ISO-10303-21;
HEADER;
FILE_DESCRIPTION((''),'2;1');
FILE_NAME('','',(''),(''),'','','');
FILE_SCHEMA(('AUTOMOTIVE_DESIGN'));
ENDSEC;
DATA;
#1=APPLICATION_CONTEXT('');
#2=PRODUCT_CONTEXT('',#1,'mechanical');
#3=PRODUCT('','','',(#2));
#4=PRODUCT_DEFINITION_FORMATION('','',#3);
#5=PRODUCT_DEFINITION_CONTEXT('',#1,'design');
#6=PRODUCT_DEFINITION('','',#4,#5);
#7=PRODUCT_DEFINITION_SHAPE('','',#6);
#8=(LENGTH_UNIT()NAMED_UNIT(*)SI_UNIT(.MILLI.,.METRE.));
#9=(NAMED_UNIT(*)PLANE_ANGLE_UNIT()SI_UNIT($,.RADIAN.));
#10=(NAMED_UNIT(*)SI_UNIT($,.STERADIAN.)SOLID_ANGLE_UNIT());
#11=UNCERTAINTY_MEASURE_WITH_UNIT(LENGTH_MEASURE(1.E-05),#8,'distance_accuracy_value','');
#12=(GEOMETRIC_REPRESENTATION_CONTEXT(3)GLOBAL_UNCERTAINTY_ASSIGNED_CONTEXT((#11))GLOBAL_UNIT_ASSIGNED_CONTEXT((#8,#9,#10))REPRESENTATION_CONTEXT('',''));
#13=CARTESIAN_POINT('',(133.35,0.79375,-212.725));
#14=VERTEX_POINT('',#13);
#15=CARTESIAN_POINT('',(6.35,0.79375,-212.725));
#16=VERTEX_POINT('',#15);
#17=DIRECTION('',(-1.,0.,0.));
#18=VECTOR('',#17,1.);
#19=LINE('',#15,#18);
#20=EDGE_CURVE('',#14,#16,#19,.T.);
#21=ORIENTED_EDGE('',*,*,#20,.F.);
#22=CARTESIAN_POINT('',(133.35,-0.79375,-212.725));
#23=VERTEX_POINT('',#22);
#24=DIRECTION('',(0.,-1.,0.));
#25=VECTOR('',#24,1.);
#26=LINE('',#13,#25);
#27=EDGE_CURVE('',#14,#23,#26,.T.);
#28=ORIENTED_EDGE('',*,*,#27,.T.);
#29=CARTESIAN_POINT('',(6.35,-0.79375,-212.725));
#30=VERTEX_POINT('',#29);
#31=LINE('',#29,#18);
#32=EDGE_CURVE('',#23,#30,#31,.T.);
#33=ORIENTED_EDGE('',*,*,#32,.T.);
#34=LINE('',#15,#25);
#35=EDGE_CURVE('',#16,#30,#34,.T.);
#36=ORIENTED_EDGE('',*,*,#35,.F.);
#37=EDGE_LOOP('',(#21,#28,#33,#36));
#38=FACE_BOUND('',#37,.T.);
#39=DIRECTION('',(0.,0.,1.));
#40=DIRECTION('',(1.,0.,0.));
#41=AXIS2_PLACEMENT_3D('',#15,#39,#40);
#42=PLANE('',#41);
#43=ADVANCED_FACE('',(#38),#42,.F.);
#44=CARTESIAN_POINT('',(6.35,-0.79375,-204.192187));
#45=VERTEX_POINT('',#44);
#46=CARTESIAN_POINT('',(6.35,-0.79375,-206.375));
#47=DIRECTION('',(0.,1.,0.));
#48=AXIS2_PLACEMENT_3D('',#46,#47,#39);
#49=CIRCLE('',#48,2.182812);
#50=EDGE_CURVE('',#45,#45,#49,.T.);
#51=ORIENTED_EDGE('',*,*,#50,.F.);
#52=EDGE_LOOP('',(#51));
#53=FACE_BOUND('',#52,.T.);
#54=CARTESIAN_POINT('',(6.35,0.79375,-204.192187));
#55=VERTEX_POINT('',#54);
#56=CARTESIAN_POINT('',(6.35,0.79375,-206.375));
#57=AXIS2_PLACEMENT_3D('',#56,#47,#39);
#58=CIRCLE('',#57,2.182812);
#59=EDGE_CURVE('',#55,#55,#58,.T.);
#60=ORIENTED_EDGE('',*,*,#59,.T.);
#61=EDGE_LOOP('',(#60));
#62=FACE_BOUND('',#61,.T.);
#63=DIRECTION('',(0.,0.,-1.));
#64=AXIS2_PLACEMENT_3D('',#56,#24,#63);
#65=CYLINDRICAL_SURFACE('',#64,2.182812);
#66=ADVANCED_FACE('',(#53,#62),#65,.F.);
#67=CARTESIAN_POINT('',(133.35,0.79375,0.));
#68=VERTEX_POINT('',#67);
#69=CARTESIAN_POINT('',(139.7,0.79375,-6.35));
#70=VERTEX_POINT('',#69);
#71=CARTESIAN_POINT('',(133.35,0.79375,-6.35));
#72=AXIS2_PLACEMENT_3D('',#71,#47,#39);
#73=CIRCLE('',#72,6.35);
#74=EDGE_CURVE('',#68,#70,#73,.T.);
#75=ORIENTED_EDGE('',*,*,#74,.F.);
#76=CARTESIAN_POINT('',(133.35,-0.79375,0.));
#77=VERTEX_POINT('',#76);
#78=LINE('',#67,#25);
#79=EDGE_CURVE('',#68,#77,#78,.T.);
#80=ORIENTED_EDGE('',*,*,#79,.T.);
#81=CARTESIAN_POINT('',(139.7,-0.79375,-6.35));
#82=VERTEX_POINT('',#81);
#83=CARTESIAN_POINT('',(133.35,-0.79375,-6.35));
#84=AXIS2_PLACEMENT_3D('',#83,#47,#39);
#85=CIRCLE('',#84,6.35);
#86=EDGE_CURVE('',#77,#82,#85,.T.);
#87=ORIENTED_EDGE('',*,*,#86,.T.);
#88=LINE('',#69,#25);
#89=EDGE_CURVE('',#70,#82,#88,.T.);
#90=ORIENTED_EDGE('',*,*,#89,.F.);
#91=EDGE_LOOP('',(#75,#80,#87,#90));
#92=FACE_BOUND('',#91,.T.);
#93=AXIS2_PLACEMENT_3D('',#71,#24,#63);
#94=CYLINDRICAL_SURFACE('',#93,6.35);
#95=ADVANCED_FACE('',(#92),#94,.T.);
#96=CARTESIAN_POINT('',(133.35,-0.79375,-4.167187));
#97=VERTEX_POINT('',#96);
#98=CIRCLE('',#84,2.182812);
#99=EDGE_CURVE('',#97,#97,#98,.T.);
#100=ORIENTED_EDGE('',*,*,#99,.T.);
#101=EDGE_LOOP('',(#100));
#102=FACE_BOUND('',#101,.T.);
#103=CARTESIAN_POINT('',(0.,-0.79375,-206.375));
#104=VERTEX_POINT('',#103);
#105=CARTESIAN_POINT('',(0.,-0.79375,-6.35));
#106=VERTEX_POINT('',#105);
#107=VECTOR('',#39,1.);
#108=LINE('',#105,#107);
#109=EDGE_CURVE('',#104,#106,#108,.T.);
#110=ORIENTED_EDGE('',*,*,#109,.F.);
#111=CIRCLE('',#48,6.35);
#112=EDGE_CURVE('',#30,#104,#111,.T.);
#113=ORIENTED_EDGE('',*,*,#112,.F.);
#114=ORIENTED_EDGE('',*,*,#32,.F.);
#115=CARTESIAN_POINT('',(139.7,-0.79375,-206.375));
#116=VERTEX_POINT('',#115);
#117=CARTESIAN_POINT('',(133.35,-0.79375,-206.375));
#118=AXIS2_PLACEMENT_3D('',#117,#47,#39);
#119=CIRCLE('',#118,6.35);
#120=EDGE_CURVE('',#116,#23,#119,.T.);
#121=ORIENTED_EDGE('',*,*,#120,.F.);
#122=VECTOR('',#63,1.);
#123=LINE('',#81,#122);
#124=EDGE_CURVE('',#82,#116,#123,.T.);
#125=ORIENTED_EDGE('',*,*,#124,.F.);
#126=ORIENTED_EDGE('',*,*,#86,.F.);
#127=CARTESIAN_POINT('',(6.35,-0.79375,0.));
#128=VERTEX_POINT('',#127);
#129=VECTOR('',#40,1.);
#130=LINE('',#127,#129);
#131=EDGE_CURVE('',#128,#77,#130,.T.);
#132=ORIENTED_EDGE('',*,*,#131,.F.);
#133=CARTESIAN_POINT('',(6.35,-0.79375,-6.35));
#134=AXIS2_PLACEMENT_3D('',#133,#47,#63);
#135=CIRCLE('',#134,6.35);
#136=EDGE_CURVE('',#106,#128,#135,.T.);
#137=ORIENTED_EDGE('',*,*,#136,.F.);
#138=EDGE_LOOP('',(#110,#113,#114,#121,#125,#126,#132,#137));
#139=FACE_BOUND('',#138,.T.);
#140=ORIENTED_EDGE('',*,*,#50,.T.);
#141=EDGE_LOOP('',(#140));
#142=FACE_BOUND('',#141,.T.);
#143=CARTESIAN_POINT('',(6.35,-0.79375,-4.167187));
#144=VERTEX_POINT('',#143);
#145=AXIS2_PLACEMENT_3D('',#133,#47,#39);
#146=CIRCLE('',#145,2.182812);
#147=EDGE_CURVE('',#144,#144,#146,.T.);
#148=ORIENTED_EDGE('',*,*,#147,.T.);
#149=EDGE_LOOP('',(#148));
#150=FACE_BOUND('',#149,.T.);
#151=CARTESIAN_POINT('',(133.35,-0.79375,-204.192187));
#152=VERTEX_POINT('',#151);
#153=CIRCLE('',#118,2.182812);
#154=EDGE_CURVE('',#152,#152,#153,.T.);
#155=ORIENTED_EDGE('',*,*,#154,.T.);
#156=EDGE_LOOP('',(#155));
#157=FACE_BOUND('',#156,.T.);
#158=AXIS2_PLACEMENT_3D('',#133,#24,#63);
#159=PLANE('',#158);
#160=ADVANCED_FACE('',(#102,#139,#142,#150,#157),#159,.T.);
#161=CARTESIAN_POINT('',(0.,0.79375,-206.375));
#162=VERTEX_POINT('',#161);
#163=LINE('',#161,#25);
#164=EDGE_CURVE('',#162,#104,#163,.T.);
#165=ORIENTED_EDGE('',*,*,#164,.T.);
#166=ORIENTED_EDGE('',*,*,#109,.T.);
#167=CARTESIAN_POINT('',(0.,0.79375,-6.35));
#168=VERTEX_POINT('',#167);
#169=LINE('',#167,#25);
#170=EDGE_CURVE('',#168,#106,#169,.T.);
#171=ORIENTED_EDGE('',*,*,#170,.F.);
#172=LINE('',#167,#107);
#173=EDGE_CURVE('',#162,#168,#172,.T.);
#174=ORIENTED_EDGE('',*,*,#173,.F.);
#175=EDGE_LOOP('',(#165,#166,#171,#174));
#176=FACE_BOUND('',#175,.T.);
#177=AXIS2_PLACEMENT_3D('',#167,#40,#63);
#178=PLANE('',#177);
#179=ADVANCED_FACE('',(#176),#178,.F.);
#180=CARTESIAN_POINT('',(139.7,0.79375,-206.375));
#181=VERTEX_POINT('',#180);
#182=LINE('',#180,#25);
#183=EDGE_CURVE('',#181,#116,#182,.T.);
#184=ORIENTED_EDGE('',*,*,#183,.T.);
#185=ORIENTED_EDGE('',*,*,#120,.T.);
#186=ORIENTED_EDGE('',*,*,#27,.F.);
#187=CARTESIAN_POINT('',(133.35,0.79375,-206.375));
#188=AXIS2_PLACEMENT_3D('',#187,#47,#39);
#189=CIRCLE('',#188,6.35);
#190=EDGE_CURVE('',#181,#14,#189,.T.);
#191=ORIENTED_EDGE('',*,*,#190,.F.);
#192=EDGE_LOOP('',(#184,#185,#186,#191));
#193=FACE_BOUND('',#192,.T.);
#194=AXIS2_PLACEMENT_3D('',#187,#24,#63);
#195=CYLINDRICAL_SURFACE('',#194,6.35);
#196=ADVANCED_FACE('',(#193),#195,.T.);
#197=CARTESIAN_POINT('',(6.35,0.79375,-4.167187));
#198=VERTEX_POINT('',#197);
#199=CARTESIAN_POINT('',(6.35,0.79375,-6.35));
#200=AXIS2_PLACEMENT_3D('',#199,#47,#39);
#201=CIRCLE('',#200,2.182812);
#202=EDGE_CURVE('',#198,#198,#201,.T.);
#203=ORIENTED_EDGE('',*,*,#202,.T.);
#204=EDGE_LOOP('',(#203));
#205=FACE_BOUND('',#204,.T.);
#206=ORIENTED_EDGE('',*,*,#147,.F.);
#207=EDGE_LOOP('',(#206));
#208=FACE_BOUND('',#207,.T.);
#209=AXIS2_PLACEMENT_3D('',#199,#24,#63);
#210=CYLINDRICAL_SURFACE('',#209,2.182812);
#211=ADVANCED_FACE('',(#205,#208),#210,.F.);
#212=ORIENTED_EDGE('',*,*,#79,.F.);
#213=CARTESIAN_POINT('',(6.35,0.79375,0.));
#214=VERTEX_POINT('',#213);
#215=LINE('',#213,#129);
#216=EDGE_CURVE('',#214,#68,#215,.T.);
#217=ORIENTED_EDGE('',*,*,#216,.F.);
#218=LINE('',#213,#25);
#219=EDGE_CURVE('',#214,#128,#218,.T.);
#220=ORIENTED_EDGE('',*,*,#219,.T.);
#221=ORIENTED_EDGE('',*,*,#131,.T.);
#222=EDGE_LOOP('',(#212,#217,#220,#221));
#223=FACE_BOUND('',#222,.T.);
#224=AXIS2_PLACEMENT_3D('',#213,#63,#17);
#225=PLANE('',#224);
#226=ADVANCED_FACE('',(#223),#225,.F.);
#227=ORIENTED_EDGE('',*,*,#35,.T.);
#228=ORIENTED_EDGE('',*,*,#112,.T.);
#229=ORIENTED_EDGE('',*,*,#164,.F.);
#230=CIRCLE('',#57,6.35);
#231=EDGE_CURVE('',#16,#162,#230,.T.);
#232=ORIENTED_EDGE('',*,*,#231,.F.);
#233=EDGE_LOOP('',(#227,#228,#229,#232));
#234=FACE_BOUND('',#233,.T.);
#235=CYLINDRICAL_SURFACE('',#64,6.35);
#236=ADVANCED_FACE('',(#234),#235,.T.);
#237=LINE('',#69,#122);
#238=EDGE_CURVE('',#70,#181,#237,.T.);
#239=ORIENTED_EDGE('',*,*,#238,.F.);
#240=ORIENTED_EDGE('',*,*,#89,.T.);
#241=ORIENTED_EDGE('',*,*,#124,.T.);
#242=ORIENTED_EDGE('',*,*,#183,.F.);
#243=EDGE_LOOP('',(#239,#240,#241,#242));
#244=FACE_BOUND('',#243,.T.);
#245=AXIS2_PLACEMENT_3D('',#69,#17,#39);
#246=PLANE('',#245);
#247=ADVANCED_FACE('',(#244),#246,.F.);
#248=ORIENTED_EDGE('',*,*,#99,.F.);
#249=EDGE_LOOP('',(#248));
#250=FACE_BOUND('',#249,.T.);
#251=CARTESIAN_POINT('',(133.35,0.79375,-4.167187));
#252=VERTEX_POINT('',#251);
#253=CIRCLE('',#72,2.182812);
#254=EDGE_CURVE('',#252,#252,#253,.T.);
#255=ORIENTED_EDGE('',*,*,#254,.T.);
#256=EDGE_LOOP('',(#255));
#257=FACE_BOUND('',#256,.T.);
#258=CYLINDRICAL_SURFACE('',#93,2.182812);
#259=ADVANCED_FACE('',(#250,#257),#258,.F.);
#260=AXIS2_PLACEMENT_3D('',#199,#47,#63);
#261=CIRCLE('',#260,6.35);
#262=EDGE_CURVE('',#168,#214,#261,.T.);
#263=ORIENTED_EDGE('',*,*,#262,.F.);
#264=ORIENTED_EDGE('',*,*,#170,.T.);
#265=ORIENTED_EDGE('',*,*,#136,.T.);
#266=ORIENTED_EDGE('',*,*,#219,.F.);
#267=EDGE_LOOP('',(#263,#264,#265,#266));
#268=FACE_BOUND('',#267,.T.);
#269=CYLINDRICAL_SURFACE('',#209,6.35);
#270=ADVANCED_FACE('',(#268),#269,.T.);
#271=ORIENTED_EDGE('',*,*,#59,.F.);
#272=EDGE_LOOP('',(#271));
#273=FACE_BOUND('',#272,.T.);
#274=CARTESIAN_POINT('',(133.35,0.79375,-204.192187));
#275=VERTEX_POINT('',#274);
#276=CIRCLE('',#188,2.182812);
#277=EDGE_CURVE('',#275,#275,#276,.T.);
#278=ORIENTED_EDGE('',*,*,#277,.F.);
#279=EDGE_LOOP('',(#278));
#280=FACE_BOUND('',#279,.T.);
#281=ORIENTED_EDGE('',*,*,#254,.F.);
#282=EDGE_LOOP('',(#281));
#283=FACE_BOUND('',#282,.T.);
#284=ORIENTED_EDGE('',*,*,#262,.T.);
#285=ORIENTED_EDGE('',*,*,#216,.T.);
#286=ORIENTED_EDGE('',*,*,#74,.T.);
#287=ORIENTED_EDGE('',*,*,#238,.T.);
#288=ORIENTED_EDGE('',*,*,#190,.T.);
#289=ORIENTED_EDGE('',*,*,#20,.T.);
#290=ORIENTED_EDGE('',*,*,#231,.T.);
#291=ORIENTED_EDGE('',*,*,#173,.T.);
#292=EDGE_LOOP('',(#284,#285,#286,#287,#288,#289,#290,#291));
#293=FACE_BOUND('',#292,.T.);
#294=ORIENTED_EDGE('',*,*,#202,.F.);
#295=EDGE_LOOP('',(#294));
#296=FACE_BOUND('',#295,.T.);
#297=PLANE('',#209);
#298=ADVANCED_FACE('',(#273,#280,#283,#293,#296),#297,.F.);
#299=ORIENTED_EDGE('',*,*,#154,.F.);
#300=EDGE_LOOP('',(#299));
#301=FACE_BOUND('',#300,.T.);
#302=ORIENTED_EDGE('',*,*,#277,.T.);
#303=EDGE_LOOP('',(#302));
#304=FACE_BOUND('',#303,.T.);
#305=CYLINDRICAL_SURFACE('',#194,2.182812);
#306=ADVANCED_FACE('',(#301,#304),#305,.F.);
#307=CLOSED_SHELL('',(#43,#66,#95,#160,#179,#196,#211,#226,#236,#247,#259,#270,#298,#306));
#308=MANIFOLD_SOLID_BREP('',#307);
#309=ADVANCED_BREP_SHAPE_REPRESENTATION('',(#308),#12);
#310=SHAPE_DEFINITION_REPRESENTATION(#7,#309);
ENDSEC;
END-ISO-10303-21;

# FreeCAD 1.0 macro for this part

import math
import FreeCAD as App
import Part
import Sketcher

V = App.Vector
Q = App.Units.Quantity

doc = App.newDocument("Part")
body = doc.addObject("PartDesign::Body", "Body")

sketch1 = doc.addObject("Sketcher::SketchObject", "Sketch")
body.addObject(sketch1)
sketch1.AttachmentSupport = (doc.XZ_Plane, [""])
sketch1.MapMode = "FlatFace"
sketch1.addGeometry([
    Part.LineSegment(V(6.3, 0, 0), V(133.3, 0, 0)),
    Part.ArcOfCircle(Part.Circle(V(133.4, -6.3, 0), V(0, 0, 1), 6.3), math.radians(0), math.radians(90)),
    Part.LineSegment(V(139.7, -6.3, 0), V(139.7, -206.4, 0)),
    Part.ArcOfCircle(Part.Circle(V(133.4, -206.4, 0), V(0, 0, 1), 6.3), math.radians(-90), math.radians(0)),
    Part.LineSegment(V(133.3, -212.7, 0), V(6.3, -212.7, 0)),
    Part.ArcOfCircle(Part.Circle(V(6.3, -206.4, 0), V(0, 0, 1), 6.3), math.radians(180), math.radians(270)),
    Part.LineSegment(V(0, -206.4, 0), V(0, -6.3, 0)),
    Part.ArcOfCircle(Part.Circle(V(6.3, -6.3, 0), V(0, 0, 1), 6.3), math.radians(90), math.radians(180)),
    Part.Circle(V(6.3, -6.3, 0), V(0, 0, 1), 2.2),
    Part.Circle(V(133.3, -6.3, 0), V(0, 0, 1), 2.2),
    Part.Circle(V(6.3, -206.4, 0), V(0, 0, 1), 2.2),
    Part.Circle(V(133.3, -206.4, 0), V(0, 0, 1), 2.2),
], False)
sketch1.addConstraint([
    Sketcher.Constraint("Tangent", 0, 2, 1, 2),
    Sketcher.Constraint("Tangent", 1, 1, 2, 1),
    Sketcher.Constraint("Tangent", 2, 2, 3, 2),
    Sketcher.Constraint("Tangent", 3, 1, 4, 1),
    Sketcher.Constraint("Tangent", 4, 2, 5, 2),
    Sketcher.Constraint("Tangent", 5, 1, 6, 1),
    Sketcher.Constraint("Tangent", 6, 2, 7, 2),
    Sketcher.Constraint("Tangent", 7, 1, 0, 1),
    Sketcher.Constraint("Horizontal", 0),
    Sketcher.Constraint("Vertical", 2),
    Sketcher.Constraint("Horizontal", 4),
    Sketcher.Constraint("Vertical", 6),
    Sketcher.Constraint("Coincident", 8, 3, 7, 3),
    Sketcher.Constraint("Coincident", 9, 3, 1, 3),
    Sketcher.Constraint("Coincident", 10, 3, 5, 3),
    Sketcher.Constraint("Coincident", 11, 3, 3, 3),
    Sketcher.Constraint("Equal", 1, 3),
    Sketcher.Constraint("Equal", 3, 5),
    Sketcher.Constraint("Equal", 5, 7),
    Sketcher.Constraint("Equal", 8, 9),
    Sketcher.Constraint("Equal", 9, 10),
    Sketcher.Constraint("Equal", 10, 11),
    Sketcher.Constraint("PointOnObject", 0, 2, -1),
    Sketcher.Constraint("PointOnObject", 5, 1, -2),
    Sketcher.Constraint("DistanceX", 0, 1, 0, 2, Q("5 in")),
    Sketcher.Constraint("Radius", 1, Q("0.25 in")),
    Sketcher.Constraint("Diameter", 8, Q("0.171875 in")),
    Sketcher.Constraint("DistanceY", 2, 2, 2, 1, Q("7.875 in")),
])
pad1 = doc.addObject("PartDesign::Pad", "Pad")
body.addObject(pad1)
pad1.Profile = sketch1
pad1.Length = Q("0.0625 in")
pad1.Midplane = True

doc.recompute()
